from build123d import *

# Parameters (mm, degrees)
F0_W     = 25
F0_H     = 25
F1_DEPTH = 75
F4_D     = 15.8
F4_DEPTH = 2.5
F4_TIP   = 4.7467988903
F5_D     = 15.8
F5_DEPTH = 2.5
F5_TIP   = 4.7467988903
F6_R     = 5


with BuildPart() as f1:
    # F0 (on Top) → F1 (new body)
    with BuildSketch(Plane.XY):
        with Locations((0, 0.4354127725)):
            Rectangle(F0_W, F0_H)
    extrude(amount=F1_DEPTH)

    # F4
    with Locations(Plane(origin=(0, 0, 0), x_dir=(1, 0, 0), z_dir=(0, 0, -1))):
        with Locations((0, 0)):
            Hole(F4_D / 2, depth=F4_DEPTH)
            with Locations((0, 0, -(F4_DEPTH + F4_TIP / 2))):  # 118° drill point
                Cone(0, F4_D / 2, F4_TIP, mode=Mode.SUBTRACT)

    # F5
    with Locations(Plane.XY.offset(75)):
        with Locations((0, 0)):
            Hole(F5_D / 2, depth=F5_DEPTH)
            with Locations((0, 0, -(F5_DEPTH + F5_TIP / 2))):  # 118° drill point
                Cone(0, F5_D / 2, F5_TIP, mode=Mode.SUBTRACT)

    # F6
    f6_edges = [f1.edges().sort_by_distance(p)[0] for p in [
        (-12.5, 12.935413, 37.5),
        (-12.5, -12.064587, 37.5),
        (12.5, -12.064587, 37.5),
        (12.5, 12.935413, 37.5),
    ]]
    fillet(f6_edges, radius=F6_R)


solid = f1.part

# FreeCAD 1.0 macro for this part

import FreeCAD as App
import Part
import Sketcher

V = App.Vector


def edges_at(feature, points):
    """Names of the edges that pass closest to the given points."""
    edges = feature.Shape.Edges
    near = lambda p: min(range(len(edges)), key=lambda i: edges[i].distToShape(Part.Vertex(*p))[0])
    return sorted({f"Edge{near(p) + 1}" for p in points})


def add_polygon(sketch, points):
    """Adds a closed chain of lines whose ends are joined by coincident constraints."""
    first, n = sketch.GeometryCount, len(points)
    for a, b in zip(points, points[1:] + points[:1]):
        sketch.addGeometry(Part.LineSegment(App.Vector(*a, 0), App.Vector(*b, 0)), False)
    for i in range(n):
        sketch.addConstraint(Sketcher.Constraint("Coincident", first + i, 2, first + (i + 1) % n, 1))

doc = App.newDocument("Part")
body = doc.addObject("PartDesign::Body", "Body")

# Sketch on XY plane
sketch1 = body.newObject("Sketcher::SketchObject", "Sketch")
sketch1.AttachmentSupport = (doc.getObject("XY_Plane"), [""])
sketch1.MapMode = "FlatFace"
add_polygon(sketch1, [(-12.5, 12.935413), (-12.5, -12.064587), (12.5, -12.064587), (12.5, 12.935413)])  # lines 0-3
sketch1.addConstraint([
    Sketcher.Constraint("Vertical", 0),
    Sketcher.Constraint("Horizontal", 1),
    Sketcher.Constraint("Vertical", 2),
    Sketcher.Constraint("Horizontal", 3),
    Sketcher.Constraint("Equal", 3, 0),
    Sketcher.Constraint("DistanceX", 1, 1, 1, 2, 25.0),
    Sketcher.Constraint("DistanceX", 0, 2, -1, 1, 12.5),
    Sketcher.Constraint("DistanceY", 0, 2, -1, 1, 12.064587),
])
pad1 = body.newObject("PartDesign::Pad", "Pad")
pad1.Profile = sketch1
pad1.Length = 75

# Sketch on XY plane
sketch2 = body.newObject("Sketcher::SketchObject", "Sketch001")
sketch2.AttachmentSupport = (doc.getObject("XY_Plane"), [""])
sketch2.MapMode = "FlatFace"
sketch2.addGeometry(Part.Circle(V(0, 0, 0), V(0, 0, 1), 7.9), False)
sketch2.addConstraint([
    Sketcher.Constraint("Coincident", 0, 3, -1, 1),
    Sketcher.Constraint("Diameter", 0, 15.8),
])
doc.recompute()
hole = body.newObject("PartDesign::Hole", "Hole")
hole.Profile = sketch2
hole.ThreadType = "None"
hole.Diameter = 15.8
hole.DepthType = "Dimension"
hole.Depth = 2.5
hole.DrillPoint = "Angled"
hole.DrillPointAngle = 118
hole.Reversed = True

# Sketch on XY plane
sketch3 = body.newObject("Sketcher::SketchObject", "Sketch002")
sketch3.AttachmentSupport = (doc.getObject("XY_Plane"), [""])
sketch3.MapMode = "FlatFace"
sketch3.AttachmentOffset = App.Placement(V(0, 0, 75), App.Rotation())
sketch3.addGeometry(Part.Circle(V(0, 0, 0), V(0, 0, 1), 7.9), False)
sketch3.addConstraint([
    Sketcher.Constraint("Coincident", 0, 3, -1, 1),
    Sketcher.Constraint("Diameter", 0, 15.8),
])
doc.recompute()
hole2 = body.newObject("PartDesign::Hole", "Hole001")
hole2.Profile = sketch3
hole2.ThreadType = "None"
hole2.Diameter = 15.8
hole2.DepthType = "Dimension"
hole2.Depth = 2.5
hole2.DrillPoint = "Angled"
hole2.DrillPointAngle = 118
doc.recompute()

fillet = body.newObject("PartDesign::Fillet", "Fillet")
fillet.Base = (hole2, edges_at(hole2, [
    (-12.5, 12.935, 37.5),
    (-12.5, -12.065, 37.5),
    (12.5, -12.065, 37.5),
    (12.5, 12.935, 37.5),
]))
fillet.Radius = 5

doc.recompute()
